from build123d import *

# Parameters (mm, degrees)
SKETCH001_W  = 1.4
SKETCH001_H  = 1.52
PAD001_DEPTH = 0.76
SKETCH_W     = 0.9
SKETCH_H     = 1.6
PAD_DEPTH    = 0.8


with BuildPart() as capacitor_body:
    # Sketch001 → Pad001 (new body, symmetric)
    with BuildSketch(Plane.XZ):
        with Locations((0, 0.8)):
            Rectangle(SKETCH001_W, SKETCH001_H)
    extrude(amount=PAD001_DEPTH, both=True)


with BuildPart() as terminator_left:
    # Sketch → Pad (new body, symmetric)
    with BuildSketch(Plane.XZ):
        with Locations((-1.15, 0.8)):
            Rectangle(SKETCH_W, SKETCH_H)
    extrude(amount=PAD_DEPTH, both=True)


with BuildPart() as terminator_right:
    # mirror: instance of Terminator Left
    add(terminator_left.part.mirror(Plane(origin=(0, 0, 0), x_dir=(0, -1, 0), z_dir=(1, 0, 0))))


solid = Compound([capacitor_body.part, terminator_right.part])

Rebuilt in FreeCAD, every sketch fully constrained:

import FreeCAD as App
import Part
import Sketcher

V = App.Vector
Q = App.Units.Quantity

doc = App.newDocument("Part")
params = doc.addObject("Spreadsheet::Sheet", "Params")
for row, (alias, value) in enumerate([
    ("sketch1_width", "1.4 mm"),
    ("sketch1_height", "1.52 mm"),
    ("pad1_length", "1.52 mm"),
    ("sketch2_width", "0.9 mm"),
    ("sketch2_height", "1.6 mm"),
    ("pad2_length", "1.6 mm"),
], start=1):
    params.set(f"A{row}", alias)
    params.set(f"B{row}", "=" + value)
    params.setAlias(f"B{row}", alias)

body = doc.addObject("PartDesign::Body", "Body")

# Sketch on XZ plane
sketch1 = body.newObject("Sketcher::SketchObject", "Sketch")
sketch1.AttachmentSupport = (doc.getObject("XZ_Plane"), [""])
sketch1.MapMode = "FlatFace"
sketch1.addGeometry([
    Part.LineSegment(V(-0.7, 1.6, 0), V(-0.7, 0, 0)),
    Part.LineSegment(V(-0.7, 0, 0), V(0.7, 0, 0)),
    Part.LineSegment(V(0.7, 0, 0), V(0.7, 1.6, 0)),
    Part.LineSegment(V(0.7, 1.6, 0), V(-0.7, 1.6, 0)),
], False)
sketch1.addConstraint([
    Sketcher.Constraint("Coincident", 0, 2, 1, 1),
    Sketcher.Constraint("Coincident", 1, 2, 2, 1),
    Sketcher.Constraint("Coincident", 2, 2, 3, 1),
    Sketcher.Constraint("Coincident", 3, 2, 0, 1),
    Sketcher.Constraint("Vertical", 0),
    Sketcher.Constraint("Horizontal", 1),
    Sketcher.Constraint("Vertical", 2),
    Sketcher.Constraint("Horizontal", 3),
    Sketcher.Constraint("DistanceX", 1, 1, 1, 2, Q("1.4 mm")),
    Sketcher.Constraint("DistanceY", 0, 2, 0, 1, Q("1.52 mm")),
    Sketcher.Constraint("DistanceX", 0, 2, -1, 1, Q("0.7 mm")),
    Sketcher.Constraint("DistanceY", -1, 1, 0, 2, Q("0.04 mm")),
])
sketch1.setExpression("Constraints[8]", "Params.sketch1_width")
sketch1.setExpression("Constraints[9]", "Params.sketch1_height")
pad1 = body.newObject("PartDesign::Pad", "Pad")
pad1.Profile = sketch1
pad1.setExpression("Length", "Params.pad1_length")
pad1.Midplane = True
body2 = doc.addObject("PartDesign::Body", "Body001")

# Sketch on XZ plane
sketch2 = body2.newObject("Sketcher::SketchObject", "Sketch001")
sketch2.AttachmentSupport = (doc.getObject("XZ_Plane001"), [""])
sketch2.MapMode = "FlatFace"
sketch2.addGeometry([
    Part.LineSegment(V(-1.6, 1.6, 0), V(-1.6, 0, 0)),
    Part.LineSegment(V(-1.6, 0, 0), V(-0.7, 0, 0)),
    Part.LineSegment(V(-0.7, 0, 0), V(-0.7, 1.6, 0)),
    Part.LineSegment(V(-0.7, 1.6, 0), V(-1.6, 1.6, 0)),
], False)
sketch2.addConstraint([
    Sketcher.Constraint("Coincident", 0, 2, 1, 1),
    Sketcher.Constraint("Coincident", 1, 2, 2, 1),
    Sketcher.Constraint("Coincident", 2, 2, 3, 1),
    Sketcher.Constraint("Coincident", 3, 2, 0, 1),
    Sketcher.Constraint("Vertical", 0),
    Sketcher.Constraint("Horizontal", 1),
    Sketcher.Constraint("Vertical", 2),
    Sketcher.Constraint("Horizontal", 3),
    Sketcher.Constraint("PointOnObject", 0, 2, -1),
    Sketcher.Constraint("DistanceX", 1, 1, 1, 2, Q("0.9 mm")),
    Sketcher.Constraint("DistanceY", 0, 2, 0, 1, Q("1.6 mm")),
    Sketcher.Constraint("DistanceX", 0, 2, -1, 1, Q("1.6 mm")),
])
sketch2.setExpression("Constraints[9]", "Params.sketch2_width")
sketch2.setExpression("Constraints[10]", "Params.sketch2_height")
pad2 = body2.newObject("PartDesign::Pad", "Pad001")
pad2.Profile = sketch2
pad2.setExpression("Length", "Params.pad2_length")
pad2.Midplane = True
body3 = doc.addObject("PartDesign::Body", "Body002")
doc.recompute()

mirroring = doc.addObject("Part::Mirroring", "Mirroring")
mirroring.Source = body2
mirroring.Base = V(0, 0, 0)
mirroring.Normal = V(1, 0, 0)
body3.BaseFeature = mirroring
doc.recompute()
body2.Visibility = False
mirroring.Visibility = False

doc.recompute()
